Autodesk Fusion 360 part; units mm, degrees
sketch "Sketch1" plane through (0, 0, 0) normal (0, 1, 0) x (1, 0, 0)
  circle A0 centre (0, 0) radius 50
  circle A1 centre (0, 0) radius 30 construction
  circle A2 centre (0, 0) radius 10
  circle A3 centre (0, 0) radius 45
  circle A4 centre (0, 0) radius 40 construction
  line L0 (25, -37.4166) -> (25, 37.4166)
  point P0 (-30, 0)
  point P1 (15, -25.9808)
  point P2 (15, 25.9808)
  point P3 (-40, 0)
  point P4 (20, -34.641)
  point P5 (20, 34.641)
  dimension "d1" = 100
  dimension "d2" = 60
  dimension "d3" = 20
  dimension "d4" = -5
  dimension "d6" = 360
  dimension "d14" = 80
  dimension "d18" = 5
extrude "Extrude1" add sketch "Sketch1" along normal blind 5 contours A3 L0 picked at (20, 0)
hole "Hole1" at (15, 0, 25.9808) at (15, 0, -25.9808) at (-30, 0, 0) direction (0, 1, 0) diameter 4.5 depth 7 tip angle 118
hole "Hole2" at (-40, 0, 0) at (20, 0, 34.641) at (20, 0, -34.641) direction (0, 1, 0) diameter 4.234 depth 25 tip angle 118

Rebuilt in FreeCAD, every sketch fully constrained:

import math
import FreeCAD as App
import Part
import Sketcher
from FreeCAD import Vector
Q = App.Units.Quantity

doc = App.newDocument("Part")
body = doc.addObject("PartDesign::Body", "Body")

# Sketch on XZ plane
sketch1 = doc.addObject("Sketcher::SketchObject", "Sketch")
body.addObject(sketch1)
sketch1.AttachmentSupport = (doc.XZ_Plane, [""])
sketch1.MapMode = "FlatFace"
sketch1.addGeometry([
    Part.LineSegment(Vector(25, 37, 0), Vector(25, -37, 0)),
    Part.ArcOfCircle(Part.Circle(Vector(0, 0, 0), Vector(0, 0, 1), 45), math.radians(56), math.radians(304)),
    Part.Circle(Vector(0, 0, 0), Vector(0, 0, 1), 10),
], False)
sketch1.addConstraint([
    Sketcher.Constraint("Coincident", 0, 1, 1, 1),
    Sketcher.Constraint("Coincident", 1, 2, 0, 2),
    Sketcher.Constraint("Vertical", 0),
    Sketcher.Constraint("Coincident", 1, 3, -1, 1),
    Sketcher.Constraint("Coincident", 2, 3, -1, 1),
    Sketcher.Constraint("Diameter", 2, Q("20 mm")),
    Sketcher.Constraint("Radius", 1, Q("45 mm")),
    Sketcher.Constraint("DistanceX", -1, 1, 0, 1, Q("25 mm")),
])
pad1 = doc.addObject("PartDesign::Pad", "Pad")
body.addObject(pad1)
pad1.Profile = sketch1
pad1.Length = 5
pad1.Reversed = True

# Sketch on XZ plane
sketch2 = doc.addObject("Sketcher::SketchObject", "Sketch001")
body.addObject(sketch2)
sketch2.AttachmentSupport = (doc.XZ_Plane, [""])
sketch2.MapMode = "FlatFace"
sketch2.addGeometry([
    Part.Circle(Vector(15, 26, 0), Vector(0, 0, 1), 2.2),
    Part.Circle(Vector(15, -26, 0), Vector(0, 0, 1), 2.2),
    Part.Circle(Vector(-30, 0, 0), Vector(0, 0, 1), 2.2),
], False)
sketch2.addConstraint([
    Sketcher.Constraint("Equal", 0, 1),
    Sketcher.Constraint("Equal", 1, 2),
    Sketcher.Constraint("Symmetric", 0, 3, 1, 3, -1),
    Sketcher.Constraint("PointOnObject", 2, 3, -1),
    Sketcher.Constraint("Diameter", 0, Q("4.5 mm")),
    Sketcher.Constraint("DistanceX", -1, 1, 0, 3, Q("15 mm")),
    Sketcher.Constraint("DistanceX", 2, 3, -1, 1, Q("30 mm")),
    Sketcher.Constraint("DistanceY", -1, 1, 0, 3, Q("25.9808 mm")),
])
doc.recompute()
hole = doc.addObject("PartDesign::Hole", "Hole")
body.addObject(hole)
hole.Profile = sketch2
hole.ThreadType = "None"
hole.Diameter = 4.5
hole.DepthType = "Dimension"
hole.Depth = 7
hole.DrillPoint = "Angled"
hole.DrillPointAngle = 118

# Sketch on XZ plane
sketch3 = doc.addObject("Sketcher::SketchObject", "Sketch002")
body.addObject(sketch3)
sketch3.AttachmentSupport = (doc.XZ_Plane, [""])
sketch3.MapMode = "FlatFace"
sketch3.addGeometry([
    Part.Circle(Vector(-40, 0, 0), Vector(0, 0, 1), 2.1),
    Part.Circle(Vector(20, 34.6, 0), Vector(0, 0, 1), 2.1),
    Part.Circle(Vector(20, -34.6, 0), Vector(0, 0, 1), 2.1),
], False)
sketch3.addConstraint([
    Sketcher.Constraint("Equal", 0, 1),
    Sketcher.Constraint("Equal", 1, 2),
    Sketcher.Constraint("Symmetric", 1, 3, 2, 3, -1),
    Sketcher.Constraint("PointOnObject", 0, 3, -1),
    Sketcher.Constraint("Diameter", 0, Q("4.234 mm")),
    Sketcher.Constraint("DistanceX", 0, 3, -1, 1, Q("40 mm")),
    Sketcher.Constraint("DistanceX", -1, 1, 1, 3, Q("20 mm")),
    Sketcher.Constraint("DistanceY", -1, 1, 1, 3, Q("34.641 mm")),
])
doc.recompute()
hole2 = doc.addObject("PartDesign::Hole", "Hole001")
body.addObject(hole2)
hole2.Profile = sketch3
hole2.ThreadType = "None"
hole2.Diameter = 4.234
hole2.DepthType = "Dimension"
hole2.Depth = 25
hole2.DrillPoint = "Angled"
hole2.DrillPointAngle = 118

doc.recompute()
